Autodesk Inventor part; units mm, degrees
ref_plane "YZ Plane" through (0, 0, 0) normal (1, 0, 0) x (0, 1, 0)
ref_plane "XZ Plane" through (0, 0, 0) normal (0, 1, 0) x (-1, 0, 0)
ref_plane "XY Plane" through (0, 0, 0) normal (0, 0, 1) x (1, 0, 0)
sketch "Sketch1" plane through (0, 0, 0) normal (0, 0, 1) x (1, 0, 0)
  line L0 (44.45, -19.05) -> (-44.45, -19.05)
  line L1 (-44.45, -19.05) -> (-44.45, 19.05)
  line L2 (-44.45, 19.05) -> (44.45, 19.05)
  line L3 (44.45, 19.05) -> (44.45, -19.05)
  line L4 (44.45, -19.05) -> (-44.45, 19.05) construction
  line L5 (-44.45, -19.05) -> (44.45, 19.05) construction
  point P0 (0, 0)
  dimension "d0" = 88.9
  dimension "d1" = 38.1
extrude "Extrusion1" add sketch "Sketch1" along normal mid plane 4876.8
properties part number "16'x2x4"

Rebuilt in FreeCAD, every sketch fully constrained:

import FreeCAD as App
import Part
import Sketcher
from FreeCAD import Vector
Q = App.Units.Quantity


def add_polygon(sketch, points):
    """Adds a closed chain of lines whose ends are joined by coincident constraints."""
    first, n = sketch.GeometryCount, len(points)
    for a, b in zip(points, points[1:] + points[:1]):
        sketch.addGeometry(Part.LineSegment(App.Vector(*a, 0), App.Vector(*b, 0)), False)
    for i in range(n):
        sketch.addConstraint(Sketcher.Constraint("Coincident", first + i, 2, first + (i + 1) % n, 1))

doc = App.newDocument("Part")
params = doc.addObject("Spreadsheet::Sheet", "Params")
for row, (alias, value) in enumerate([
    ("sketch1_width", "3.5 in"),
    ("sketch1_height", "1.5 in"),
    ("pad1_length", "192 in"),
], start=1):
    params.set(f"A{row}", alias)
    params.set(f"B{row}", "=" + value)
    params.setAlias(f"B{row}", alias)

body = doc.addObject("PartDesign::Body", "Body")

sketch1 = doc.addObject("Sketcher::SketchObject", "Sketch")
body.addObject(sketch1)
sketch1.AttachmentSupport = (doc.XY_Plane, [""])
sketch1.MapMode = "FlatFace"
add_polygon(sketch1, [(-44, -19), (44, -19), (44, 19), (-44, 19)])
sketch1.addConstraint([
    Sketcher.Constraint("Horizontal", 0),
    Sketcher.Constraint("Vertical", 1),
    Sketcher.Constraint("Horizontal", 2),
    Sketcher.Constraint("Vertical", 3),
    Sketcher.Constraint("Symmetric", 0, 2, 2, 2, -1, 1),
    Sketcher.Constraint("DistanceX", 0, 1, 0, 2, Q("3.5 in")),
    Sketcher.Constraint("DistanceY", 1, 1, 1, 2, Q("1.5 in")),
])
sketch1.setExpression("Constraints[9]", "Params.sketch1_width")
sketch1.setExpression("Constraints[10]", "Params.sketch1_height")
pad1 = doc.addObject("PartDesign::Pad", "Pad")
body.addObject(pad1)
pad1.Profile = sketch1
pad1.setExpression("Length", "Params.pad1_length")
pad1.Midplane = True

doc.recompute()
